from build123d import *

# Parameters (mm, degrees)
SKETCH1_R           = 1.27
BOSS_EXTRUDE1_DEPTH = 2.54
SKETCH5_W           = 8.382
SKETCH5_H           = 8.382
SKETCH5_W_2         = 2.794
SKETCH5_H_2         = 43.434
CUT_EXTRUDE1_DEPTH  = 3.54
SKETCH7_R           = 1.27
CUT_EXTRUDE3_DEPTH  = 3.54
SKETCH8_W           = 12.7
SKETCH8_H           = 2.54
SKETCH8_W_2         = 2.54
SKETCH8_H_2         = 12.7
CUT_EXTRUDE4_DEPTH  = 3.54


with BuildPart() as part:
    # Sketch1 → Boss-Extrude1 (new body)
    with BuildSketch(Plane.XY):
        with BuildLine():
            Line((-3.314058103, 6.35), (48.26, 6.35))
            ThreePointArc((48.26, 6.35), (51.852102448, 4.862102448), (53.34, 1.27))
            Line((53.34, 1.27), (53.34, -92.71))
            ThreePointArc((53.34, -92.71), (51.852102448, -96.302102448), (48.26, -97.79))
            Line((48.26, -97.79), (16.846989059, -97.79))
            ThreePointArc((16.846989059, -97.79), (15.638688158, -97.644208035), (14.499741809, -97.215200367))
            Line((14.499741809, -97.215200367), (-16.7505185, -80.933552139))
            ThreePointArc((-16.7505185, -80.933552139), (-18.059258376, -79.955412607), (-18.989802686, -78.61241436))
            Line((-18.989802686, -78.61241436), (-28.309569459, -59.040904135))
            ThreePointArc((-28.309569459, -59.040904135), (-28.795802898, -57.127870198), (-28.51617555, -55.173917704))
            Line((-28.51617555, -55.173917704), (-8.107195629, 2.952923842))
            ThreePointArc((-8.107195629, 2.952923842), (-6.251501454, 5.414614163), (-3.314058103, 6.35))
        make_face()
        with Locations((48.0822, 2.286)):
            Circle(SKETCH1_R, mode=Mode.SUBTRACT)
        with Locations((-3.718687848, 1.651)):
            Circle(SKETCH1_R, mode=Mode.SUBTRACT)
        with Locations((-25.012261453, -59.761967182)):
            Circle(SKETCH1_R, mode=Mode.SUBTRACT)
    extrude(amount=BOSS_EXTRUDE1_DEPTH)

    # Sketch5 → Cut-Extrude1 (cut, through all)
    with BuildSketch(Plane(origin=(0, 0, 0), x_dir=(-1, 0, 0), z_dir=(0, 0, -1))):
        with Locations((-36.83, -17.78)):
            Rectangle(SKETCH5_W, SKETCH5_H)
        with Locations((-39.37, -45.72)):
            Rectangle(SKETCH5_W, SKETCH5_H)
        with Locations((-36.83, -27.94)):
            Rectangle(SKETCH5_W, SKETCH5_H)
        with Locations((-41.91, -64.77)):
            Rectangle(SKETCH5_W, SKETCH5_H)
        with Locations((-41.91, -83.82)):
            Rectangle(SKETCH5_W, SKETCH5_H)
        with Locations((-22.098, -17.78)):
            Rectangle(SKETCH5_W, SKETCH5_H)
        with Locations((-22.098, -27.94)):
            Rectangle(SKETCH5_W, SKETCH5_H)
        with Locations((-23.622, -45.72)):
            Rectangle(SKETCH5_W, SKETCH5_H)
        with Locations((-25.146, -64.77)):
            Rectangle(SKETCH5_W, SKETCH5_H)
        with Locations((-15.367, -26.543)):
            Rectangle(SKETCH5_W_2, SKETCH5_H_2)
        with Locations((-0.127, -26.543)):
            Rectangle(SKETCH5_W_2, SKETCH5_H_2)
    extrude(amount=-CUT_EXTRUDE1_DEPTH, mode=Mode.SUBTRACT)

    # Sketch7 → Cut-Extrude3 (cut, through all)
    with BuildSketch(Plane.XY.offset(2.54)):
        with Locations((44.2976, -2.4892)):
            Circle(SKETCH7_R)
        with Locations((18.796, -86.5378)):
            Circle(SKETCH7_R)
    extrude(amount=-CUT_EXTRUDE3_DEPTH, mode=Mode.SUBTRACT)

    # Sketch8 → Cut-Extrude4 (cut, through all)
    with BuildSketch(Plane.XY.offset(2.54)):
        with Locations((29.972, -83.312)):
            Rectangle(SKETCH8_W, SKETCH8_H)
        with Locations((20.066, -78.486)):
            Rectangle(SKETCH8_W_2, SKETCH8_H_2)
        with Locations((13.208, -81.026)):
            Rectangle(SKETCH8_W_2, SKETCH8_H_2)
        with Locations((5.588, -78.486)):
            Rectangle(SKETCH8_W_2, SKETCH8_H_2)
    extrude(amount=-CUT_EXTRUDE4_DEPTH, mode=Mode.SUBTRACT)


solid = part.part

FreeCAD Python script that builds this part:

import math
import FreeCAD as App
import Part
import Sketcher
from FreeCAD import Vector
Q = App.Units.Quantity

doc = App.newDocument("Part")
body = doc.addObject("PartDesign::Body", "Body")

# Sketch on XY plane
sketch1 = body.newObject("Sketcher::SketchObject", "Sketch")
sketch1.AttachmentSupport = (doc.getObject("XY_Plane"), [""])
sketch1.MapMode = "FlatFace"
sketch1.addGeometry([
    Part.LineSegment(Vector(48.26, 6.35, 0), Vector(-3.314058, 6.35, 0)),  # 0
    Part.ArcOfCircle(Part.Circle(Vector(-3.314058, 1.27, 0), Vector(0, 0, 1), 5.08), math.radians(90), math.radians(160.653259)),  # 1
    Part.LineSegment(Vector(-8.107196, 2.952924, 0), Vector(-28.516176, -55.173918, 0)),  # 2
    Part.ArcOfCircle(Part.Circle(Vector(-23.723038, -56.856842, 0), Vector(0, 0, 1), 5.08), math.radians(160.653259), math.radians(205.463345)),  # 3
    Part.LineSegment(Vector(-28.309569, -59.040904, 0), Vector(-18.989803, -78.612414, 0)),  # 4
    Part.ArcOfCircle(Part.Circle(Vector(-14.403271, -76.428352, 0), Vector(0, 0, 1), 5.08), math.radians(-154.536655), math.radians(-117.519892)),  # 5
    Part.LineSegment(Vector(-16.750518, -80.933552, 0), Vector(14.499742, -97.2152, 0)),  # 6
    Part.ArcOfCircle(Part.Circle(Vector(16.846989, -92.71, 0), Vector(0, 0, 1), 5.08), math.radians(-117.519892), math.radians(-90)),  # 7
    Part.LineSegment(Vector(16.846989, -97.79, 0), Vector(48.26, -97.79, 0)),  # 8
    Part.ArcOfCircle(Part.Circle(Vector(48.26, -92.71, 0), Vector(0, 0, 1), 5.08), math.radians(-90), math.radians(0)),  # 9
    Part.LineSegment(Vector(53.34, -92.71, 0), Vector(53.34, 1.27, 0)),  # 10
    Part.ArcOfCircle(Part.Circle(Vector(48.26, 1.27, 0), Vector(0, 0, 1), 5.08), math.radians(0), math.radians(90)),  # 11
    Part.Circle(Vector(-25.012261, -59.761967, 0), Vector(0, 0, 1), 1.27),  # 12
    Part.Circle(Vector(48.0822, 2.286, 0), Vector(0, 0, 1), 1.27),  # 13
    Part.Circle(Vector(-3.718688, 1.651, 0), Vector(0, 0, 1), 1.27),  # 14
], False)
sketch1.addConstraint([
    Sketcher.Constraint("Tangent", 0, 2, 1, 1),
    Sketcher.Constraint("Tangent", 1, 2, 2, 1),
    Sketcher.Constraint("Tangent", 2, 2, 3, 1),
    Sketcher.Constraint("Tangent", 3, 2, 4, 1),
    Sketcher.Constraint("Tangent", 4, 2, 5, 1),
    Sketcher.Constraint("Tangent", 5, 2, 6, 1),
    Sketcher.Constraint("Tangent", 6, 2, 7, 1),
    Sketcher.Constraint("Tangent", 7, 2, 8, 1),
    Sketcher.Constraint("Tangent", 8, 2, 9, 1),
    Sketcher.Constraint("Tangent", 9, 2, 10, 1),
    Sketcher.Constraint("Tangent", 10, 2, 11, 1),
    Sketcher.Constraint("Tangent", 11, 2, 0, 1),
    Sketcher.Constraint("Horizontal", 0),
    Sketcher.Constraint("Horizontal", 8),
    Sketcher.Constraint("Vertical", 10),
    Sketcher.Constraint("Equal", 1, 3),
    Sketcher.Constraint("Equal", 3, 5),
    Sketcher.Constraint("Equal", 5, 7),
    Sketcher.Constraint("Equal", 7, 9),
    Sketcher.Constraint("Equal", 9, 11),
    Sketcher.Constraint("Equal", 12, 13),
    Sketcher.Constraint("Equal", 13, 14),
    Sketcher.Constraint("Diameter", 12, Q("0.1 in")),
    Sketcher.Constraint("Radius", 1, Q("0.2 in")),
    Sketcher.Constraint("DistanceY", 10, 1, 10, 2, Q("3.7 in")),
    Sketcher.Constraint("DistanceX", -1, 1, 9, 3, Q("1.9 in")),
    Sketcher.Constraint("DistanceY", -1, 1, 1, 3, Q("0.05 in")),
    Sketcher.Constraint("DistanceY", -1, 1, 13, 3, Q("0.09 in")),
    Sketcher.Constraint("DistanceX", -1, 1, 13, 3, Q("1.893 in")),
    Sketcher.Constraint("DistanceY", -1, 1, 14, 3, Q("0.065 in")),
    Sketcher.Constraint("DistanceX", 0, 2, 0, 1, 51.574058),
    Sketcher.Constraint("DistanceX", 8, 1, 8, 2, 31.413011),
    Sketcher.Constraint("DistanceY", 6, 2, -1, 1, 97.2152),
    Sketcher.Constraint("DistanceX", 3, 2, 5, 3, 13.906298),
    Sketcher.Constraint("Distance", 2, 61.60565),
    Sketcher.Constraint("Distance", 6, 35.23735),
    Sketcher.Constraint("DistanceX", 12, 3, -1, 1, 25.012261),
    Sketcher.Constraint("DistanceX", 14, 3, 1, 3, 0.40463),
    Sketcher.Constraint("DistanceY", 12, 3, 2, 2, 4.588049),
])
pad1 = body.newObject("PartDesign::Pad", "Pad")
pad1.Profile = sketch1
pad1.Length = Q("0.1 in")

# Sketch on XY plane
sketch2 = body.newObject("Sketcher::SketchObject", "Sketch001")
sketch2.AttachmentSupport = (doc.getObject("XY_Plane"), [""])
sketch2.MapMode = "FlatFace"
sketch2.addGeometry([
    Part.LineSegment(Vector(41.021, -13.589, 0), Vector(41.021, -21.971, 0)),  # 0
    Part.LineSegment(Vector(41.021, -21.971, 0), Vector(32.639, -21.971, 0)),  # 1
    Part.LineSegment(Vector(32.639, -21.971, 0), Vector(32.639, -13.589, 0)),  # 2
    Part.LineSegment(Vector(32.639, -13.589, 0), Vector(41.021, -13.589, 0)),  # 3
    Part.LineSegment(Vector(43.561, -41.529, 0), Vector(43.561, -49.911, 0)),  # 4
    Part.LineSegment(Vector(43.561, -49.911, 0), Vector(35.179, -49.911, 0)),  # 5
    Part.LineSegment(Vector(35.179, -49.911, 0), Vector(35.179, -41.529, 0)),  # 6
    Part.LineSegment(Vector(35.179, -41.529, 0), Vector(43.561, -41.529, 0)),  # 7
    Part.LineSegment(Vector(41.021, -23.749, 0), Vector(41.021, -32.131, 0)),  # 8
    Part.LineSegment(Vector(41.021, -32.131, 0), Vector(32.639, -32.131, 0)),  # 9
    Part.LineSegment(Vector(32.639, -32.131, 0), Vector(32.639, -23.749, 0)),  # 10
    Part.LineSegment(Vector(32.639, -23.749, 0), Vector(41.021, -23.749, 0)),  # 11
    Part.LineSegment(Vector(46.101, -60.579, 0), Vector(46.101, -68.961, 0)),  # 12
    Part.LineSegment(Vector(46.101, -68.961, 0), Vector(37.719, -68.961, 0)),  # 13
    Part.LineSegment(Vector(37.719, -68.961, 0), Vector(37.719, -60.579, 0)),  # 14
    Part.LineSegment(Vector(37.719, -60.579, 0), Vector(46.101, -60.579, 0)),  # 15
    Part.LineSegment(Vector(46.101, -79.629, 0), Vector(46.101, -88.011, 0)),  # 16
    Part.LineSegment(Vector(46.101, -88.011, 0), Vector(37.719, -88.011, 0)),  # 17
    Part.LineSegment(Vector(37.719, -88.011, 0), Vector(37.719, -79.629, 0)),  # 18
    Part.LineSegment(Vector(37.719, -79.629, 0), Vector(46.101, -79.629, 0)),  # 19
    Part.LineSegment(Vector(26.289, -13.589, 0), Vector(26.289, -21.971, 0)),  # 20
    Part.LineSegment(Vector(26.289, -21.971, 0), Vector(17.907, -21.971, 0)),  # 21
    Part.LineSegment(Vector(17.907, -21.971, 0), Vector(17.907, -13.589, 0)),  # 22
    Part.LineSegment(Vector(17.907, -13.589, 0), Vector(26.289, -13.589, 0)),  # 23
    Part.LineSegment(Vector(26.289, -23.749, 0), Vector(26.289, -32.131, 0)),  # 24
    Part.LineSegment(Vector(26.289, -32.131, 0), Vector(17.907, -32.131, 0)),  # 25
    Part.LineSegment(Vector(17.907, -32.131, 0), Vector(17.907, -23.749, 0)),  # 26
    Part.LineSegment(Vector(17.907, -23.749, 0), Vector(26.289, -23.749, 0)),  # 27
    Part.LineSegment(Vector(27.813, -41.529, 0), Vector(27.813, -49.911, 0)),  # 28
    Part.LineSegment(Vector(27.813, -49.911, 0), Vector(19.431, -49.911, 0)),  # 29
    Part.LineSegment(Vector(19.431, -49.911, 0), Vector(19.431, -41.529, 0)),  # 30
    Part.LineSegment(Vector(19.431, -41.529, 0), Vector(27.813, -41.529, 0)),  # 31
    Part.LineSegment(Vector(29.337, -60.579, 0), Vector(29.337, -68.961, 0)),  # 32
    Part.LineSegment(Vector(29.337, -68.961, 0), Vector(20.955, -68.961, 0)),  # 33
    Part.LineSegment(Vector(20.955, -68.961, 0), Vector(20.955, -60.579, 0)),  # 34
    Part.LineSegment(Vector(20.955, -60.579, 0), Vector(29.337, -60.579, 0)),  # 35
    Part.LineSegment(Vector(16.764, -4.826, 0), Vector(16.764, -48.26, 0)),  # 36
    Part.LineSegment(Vector(16.764, -48.26, 0), Vector(13.97, -48.26, 0)),  # 37
    Part.LineSegment(Vector(13.97, -48.26, 0), Vector(13.97, -4.826, 0)),  # 38
    Part.LineSegment(Vector(13.97, -4.826, 0), Vector(16.764, -4.826, 0)),  # 39
    Part.LineSegment(Vector(1.524, -4.826, 0), Vector(1.524, -48.26, 0)),  # 40
    Part.LineSegment(Vector(1.524, -48.26, 0), Vector(-1.27, -48.26, 0)),  # 41
    Part.LineSegment(Vector(-1.27, -48.26, 0), Vector(-1.27, -4.826, 0)),  # 42
    Part.LineSegment(Vector(-1.27, -4.826, 0), Vector(1.524, -4.826, 0)),  # 43
], False)
sketch2.addConstraint([
    Sketcher.Constraint("Coincident", 0, 2, 1, 1),
    Sketcher.Constraint("Coincident", 1, 2, 2, 1),
    Sketcher.Constraint("Coincident", 2, 2, 3, 1),
    Sketcher.Constraint("Coincident", 3, 2, 0, 1),
    Sketcher.Constraint("Coincident", 4, 2, 5, 1),
    Sketcher.Constraint("Coincident", 5, 2, 6, 1),
    Sketcher.Constraint("Coincident", 6, 2, 7, 1),
    Sketcher.Constraint("Coincident", 7, 2, 4, 1),
    Sketcher.Constraint("Coincident", 8, 2, 9, 1),
    Sketcher.Constraint("Coincident", 9, 2, 10, 1),
    Sketcher.Constraint("Coincident", 10, 2, 11, 1),
    Sketcher.Constraint("Coincident", 11, 2, 8, 1),
    Sketcher.Constraint("Coincident", 12, 2, 13, 1),
    Sketcher.Constraint("Coincident", 13, 2, 14, 1),
    Sketcher.Constraint("Coincident", 14, 2, 15, 1),
    Sketcher.Constraint("Coincident", 15, 2, 12, 1),
    Sketcher.Constraint("Coincident", 16, 2, 17, 1),
    Sketcher.Constraint("Coincident", 17, 2, 18, 1),
    Sketcher.Constraint("Coincident", 18, 2, 19, 1),
    Sketcher.Constraint("Coincident", 19, 2, 16, 1),
    Sketcher.Constraint("Coincident", 20, 2, 21, 1),
    Sketcher.Constraint("Coincident", 21, 2, 22, 1),
    Sketcher.Constraint("Coincident", 22, 2, 23, 1),
    Sketcher.Constraint("Coincident", 23, 2, 20, 1),
    Sketcher.Constraint("Coincident", 24, 2, 25, 1),
    Sketcher.Constraint("Coincident", 25, 2, 26, 1),
    Sketcher.Constraint("Coincident", 26, 2, 27, 1),
    Sketcher.Constraint("Coincident", 27, 2, 24, 1),
    Sketcher.Constraint("Coincident", 28, 2, 29, 1),
    Sketcher.Constraint("Coincident", 29, 2, 30, 1),
    Sketcher.Constraint("Coincident", 30, 2, 31, 1),
    Sketcher.Constraint("Coincident", 31, 2, 28, 1),
    Sketcher.Constraint("Coincident", 32, 2, 33, 1),
    Sketcher.Constraint("Coincident", 33, 2, 34, 1),
    Sketcher.Constraint("Coincident", 34, 2, 35, 1),
    Sketcher.Constraint("Coincident", 35, 2, 32, 1),
    Sketcher.Constraint("Coincident", 36, 2, 37, 1),
    Sketcher.Constraint("Coincident", 37, 2, 38, 1),
    Sketcher.Constraint("Coincident", 38, 2, 39, 1),
    Sketcher.Constraint("Coincident", 39, 2, 36, 1),
    Sketcher.Constraint("Coincident", 40, 2, 41, 1),
    Sketcher.Constraint("Coincident", 41, 2, 42, 1),
    Sketcher.Constraint("Coincident", 42, 2, 43, 1),
    Sketcher.Constraint("Coincident", 43, 2, 40, 1),
    Sketcher.Constraint("Vertical", 0),
    Sketcher.Constraint("Horizontal", 1),
    Sketcher.Constraint("Vertical", 2),
    Sketcher.Constraint("Horizontal", 3),
    Sketcher.Constraint("Vertical", 4),
    Sketcher.Constraint("Horizontal", 5),
    Sketcher.Constraint("Vertical", 6),
    Sketcher.Constraint("Horizontal", 7),
    Sketcher.Constraint("Vertical", 8),
    Sketcher.Constraint("Horizontal", 9),
    Sketcher.Constraint("Vertical", 10),
    Sketcher.Constraint("Horizontal", 11),
    Sketcher.Constraint("Vertical", 12),
    Sketcher.Constraint("Horizontal", 13),
    Sketcher.Constraint("Vertical", 14),
    Sketcher.Constraint("Horizontal", 15),
    Sketcher.Constraint("Vertical", 16),
    Sketcher.Constraint("Horizontal", 17),
    Sketcher.Constraint("Vertical", 18),
    Sketcher.Constraint("Horizontal", 19),
    Sketcher.Constraint("Vertical", 20),
    Sketcher.Constraint("Horizontal", 21),
    Sketcher.Constraint("Vertical", 22),
    Sketcher.Constraint("Horizontal", 23),
    Sketcher.Constraint("Vertical", 24),
    Sketcher.Constraint("Horizontal", 25),
    Sketcher.Constraint("Vertical", 26),
    Sketcher.Constraint("Horizontal", 27),
    Sketcher.Constraint("Vertical", 28),
    Sketcher.Constraint("Horizontal", 29),
    Sketcher.Constraint("Vertical", 30),
    Sketcher.Constraint("Horizontal", 31),
    Sketcher.Constraint("Vertical", 32),
    Sketcher.Constraint("Horizontal", 33),
    Sketcher.Constraint("Vertical", 34),
    Sketcher.Constraint("Horizontal", 35),
    Sketcher.Constraint("Vertical", 36),
    Sketcher.Constraint("Horizontal", 37),
    Sketcher.Constraint("Vertical", 38),
    Sketcher.Constraint("Horizontal", 39),
    Sketcher.Constraint("Vertical", 40),
    Sketcher.Constraint("Horizontal", 41),
    Sketcher.Constraint("Vertical", 42),
    Sketcher.Constraint("Horizontal", 43),
    Sketcher.Constraint("Horizontal", 1, 2, 20, 2),
    Sketcher.Constraint("Horizontal", 3, 2, 22, 2),
    Sketcher.Constraint("Horizontal", 9, 2, 24, 2),
    Sketcher.Constraint("Horizontal", 11, 2, 26, 2),
    Sketcher.Constraint("Horizontal", 5, 2, 28, 2),
    Sketcher.Constraint("Horizontal", 7, 2, 30, 2),
    Sketcher.Constraint("Horizontal", 13, 2, 32, 2),
    Sketcher.Constraint("Horizontal", 15, 2, 34, 2),
    Sketcher.Constraint("Horizontal", 37, 2, 40, 2),
    Sketcher.Constraint("Horizontal", 39, 2, 42, 2),
    Sketcher.Constraint("Vertical", 3, 2, 8, 2),
    Sketcher.Constraint("Vertical", 2, 2, 9, 2),
    Sketcher.Constraint("Vertical", 15, 2, 16, 2),
    Sketcher.Constraint("Vertical", 14, 2, 17, 2),
    Sketcher.Constraint("Vertical", 23, 2, 24, 2),
    Sketcher.Constraint("Vertical", 22, 2, 25, 2),
    Sketcher.Constraint("Equal", 3, 5),
    Sketcher.Constraint("Equal", 11, 13),
    Sketcher.Constraint("Equal", 19, 21),
    Sketcher.Constraint("Equal", 27, 29),
    Sketcher.Constraint("Equal", 31, 33),
    Sketcher.Constraint("Equal", 39, 41),
    Sketcher.Constraint("Equal", 35, 0),
    Sketcher.Constraint("Equal", 2, 4),
    Sketcher.Constraint("Equal", 6, 8),
    Sketcher.Constraint("Equal", 10, 12),
    Sketcher.Constraint("Equal", 14, 16),
    Sketcher.Constraint("DistanceX", 1, 2, 1, 1, Q("0.33 in")),
    Sketcher.Constraint("DistanceX", 37, 2, 37, 1, Q("0.11 in")),
    Sketcher.Constraint("DistanceY", 36, 2, 36, 1, Q("1.71 in")),
    Sketcher.Constraint("DistanceY", 36, 2, -1, 1, Q("1.9 in")),
    Sketcher.Constraint("DistanceX", 0, 2, 4, 2, Q("0.1 in")),
    Sketcher.Constraint("DistanceY", 4, 2, 0, 2, Q("1.1 in")),
    Sketcher.Constraint("DistanceY", 8, 2, 0, 2, Q("0.4 in")),
    Sketcher.Constraint("DistanceX", 4, 2, 12, 2, Q("0.1 in")),
    Sketcher.Constraint("DistanceY", 16, 2, 4, 2, Q("1.5 in")),
    Sketcher.Constraint("DistanceX", 40, 2, 36, 2, Q("0.6 in")),
    Sketcher.Constraint("DistanceX", -1, 1, 36, 2, Q("0.66 in")),
    Sketcher.Constraint("DistanceY", 12, 2, 4, 2, Q("0.75 in")),
    Sketcher.Constraint("DistanceX", 20, 2, 1, 2, Q("0.25 in")),
    Sketcher.Constraint("DistanceX", 28, 2, 5, 2, Q("0.29 in")),
    Sketcher.Constraint("DistanceX", 32, 2, 13, 2, Q("0.33 in")),
    Sketcher.Constraint("DistanceX", -1, 1, 0, 2, Q("1.615 in")),
    Sketcher.Constraint("DistanceY", 0, 2, -1, 1, Q("0.865 in")),
])
pocket1 = body.newObject("PartDesign::Pocket", "Pocket")
pocket1.Profile = sketch2
pocket1.Type = "ThroughAll"
pocket1.Reversed = True

# Sketch on XY plane
sketch3 = body.newObject("Sketcher::SketchObject", "Sketch002")
sketch3.AttachmentSupport = (doc.getObject("XY_Plane"), [""])
sketch3.MapMode = "FlatFace"
sketch3.AttachmentOffset = App.Placement(Vector(0, 0, 0.1 * 25.4), App.Rotation())
sketch3.addGeometry([
    Part.Circle(Vector(44.2976, -2.4892, 0), Vector(0, 0, 1), 1.27),
    Part.Circle(Vector(18.796, -86.5378, 0), Vector(0, 0, 1), 1.27),
], False)
sketch3.addConstraint([
    Sketcher.Constraint("Equal", 0, 1),
    Sketcher.Constraint("Diameter", 0, Q("0.1 in")),
    Sketcher.Constraint("DistanceX", -1, 1, 1, 3, Q("0.74 in")),
    Sketcher.Constraint("DistanceX", -1, 1, 0, 3, Q("1.744 in")),
    Sketcher.Constraint("DistanceY", 0, 3, -1, 1, Q("0.098 in")),
    Sketcher.Constraint("DistanceY", 1, 3, -1, 1, Q("3.407 in")),
])
pocket2 = body.newObject("PartDesign::Pocket", "Pocket001")
pocket2.Profile = sketch3
pocket2.Type = "ThroughAll"

# Sketch on XY plane
sketch4 = body.newObject("Sketcher::SketchObject", "Sketch003")
sketch4.AttachmentSupport = (doc.getObject("XY_Plane"), [""])
sketch4.MapMode = "FlatFace"
sketch4.AttachmentOffset = App.Placement(Vector(0, 0, 0.1 * 25.4), App.Rotation())
sketch4.addGeometry([
    Part.LineSegment(Vector(23.622, -82.042, 0), Vector(23.622, -84.582, 0)),  # 0
    Part.LineSegment(Vector(23.622, -84.582, 0), Vector(36.322, -84.582, 0)),  # 1
    Part.LineSegment(Vector(36.322, -84.582, 0), Vector(36.322, -82.042, 0)),  # 2
    Part.LineSegment(Vector(36.322, -82.042, 0), Vector(23.622, -82.042, 0)),  # 3
    Part.LineSegment(Vector(18.796, -72.136, 0), Vector(18.796, -84.836, 0)),  # 4
    Part.LineSegment(Vector(18.796, -84.836, 0), Vector(21.336, -84.836, 0)),  # 5
    Part.LineSegment(Vector(21.336, -84.836, 0), Vector(21.336, -72.136, 0)),  # 6
    Part.LineSegment(Vector(21.336, -72.136, 0), Vector(18.796, -72.136, 0)),  # 7
    Part.LineSegment(Vector(11.938, -74.676, 0), Vector(11.938, -87.376, 0)),  # 8
    Part.LineSegment(Vector(11.938, -87.376, 0), Vector(14.478, -87.376, 0)),  # 9
    Part.LineSegment(Vector(14.478, -87.376, 0), Vector(14.478, -74.676, 0)),  # 10
    Part.LineSegment(Vector(14.478, -74.676, 0), Vector(11.938, -74.676, 0)),  # 11
    Part.LineSegment(Vector(4.318, -72.136, 0), Vector(4.318, -84.836, 0)),  # 12
    Part.LineSegment(Vector(4.318, -84.836, 0), Vector(6.858, -84.836, 0)),  # 13
    Part.LineSegment(Vector(6.858, -84.836, 0), Vector(6.858, -72.136, 0)),  # 14
    Part.LineSegment(Vector(6.858, -72.136, 0), Vector(4.318, -72.136, 0)),  # 15
], False)
sketch4.addConstraint([
    Sketcher.Constraint("Coincident", 0, 2, 1, 1),
    Sketcher.Constraint("Coincident", 1, 2, 2, 1),
    Sketcher.Constraint("Coincident", 2, 2, 3, 1),
    Sketcher.Constraint("Coincident", 3, 2, 0, 1),
    Sketcher.Constraint("Coincident", 4, 2, 5, 1),
    Sketcher.Constraint("Coincident", 5, 2, 6, 1),
    Sketcher.Constraint("Coincident", 6, 2, 7, 1),
    Sketcher.Constraint("Coincident", 7, 2, 4, 1),
    Sketcher.Constraint("Coincident", 8, 2, 9, 1),
    Sketcher.Constraint("Coincident", 9, 2, 10, 1),
    Sketcher.Constraint("Coincident", 10, 2, 11, 1),
    Sketcher.Constraint("Coincident", 11, 2, 8, 1),
    Sketcher.Constraint("Coincident", 12, 2, 13, 1),
    Sketcher.Constraint("Coincident", 13, 2, 14, 1),
    Sketcher.Constraint("Coincident", 14, 2, 15, 1),
    Sketcher.Constraint("Coincident", 15, 2, 12, 1),
    Sketcher.Constraint("Vertical", 0),
    Sketcher.Constraint("Horizontal", 1),
    Sketcher.Constraint("Vertical", 2),
    Sketcher.Constraint("Horizontal", 3),
    Sketcher.Constraint("Vertical", 4),
    Sketcher.Constraint("Horizontal", 5),
    Sketcher.Constraint("Vertical", 6),
    Sketcher.Constraint("Horizontal", 7),
    Sketcher.Constraint("Vertical", 8),
    Sketcher.Constraint("Horizontal", 9),
    Sketcher.Constraint("Vertical", 10),
    Sketcher.Constraint("Horizontal", 11),
    Sketcher.Constraint("Vertical", 12),
    Sketcher.Constraint("Horizontal", 13),
    Sketcher.Constraint("Vertical", 14),
    Sketcher.Constraint("Horizontal", 15),
    Sketcher.Constraint("Horizontal", 5, 2, 12, 2),
    Sketcher.Constraint("Horizontal", 7, 2, 14, 2),
    Sketcher.Constraint("Equal", 7, 9),
    Sketcher.Constraint("Equal", 11, 13),
    Sketcher.Constraint("Equal", 15, 0),
    Sketcher.Constraint("Equal", 3, 4),
    Sketcher.Constraint("Equal", 6, 8),
    Sketcher.Constraint("DistanceX", 1, 1, 1, 2, Q("0.5 in")),
    Sketcher.Constraint("DistanceX", 5, 1, 5, 2, Q("0.1 in")),
    Sketcher.Constraint("DistanceY", 8, 2, 4, 2, Q("0.1 in")),
    Sketcher.Constraint("DistanceX", 12, 2, 8, 2, Q("0.3 in")),
    Sketcher.Constraint("DistanceX", -1, 1, 0, 2, Q("0.93 in")),
    Sketcher.Constraint("DistanceY", 0, 2, -1, 1, Q("3.33 in")),
    Sketcher.Constraint("DistanceX", -1, 1, 4, 2, Q("0.74 in")),
    Sketcher.Constraint("DistanceY", 4, 2, -1, 1, Q("3.34 in")),
    Sketcher.Constraint("DistanceX", -1, 1, 8, 2, Q("0.47 in")),
])
pocket3 = body.newObject("PartDesign::Pocket", "Pocket002")
pocket3.Profile = sketch4
pocket3.Type = "ThroughAll"

doc.recompute()
